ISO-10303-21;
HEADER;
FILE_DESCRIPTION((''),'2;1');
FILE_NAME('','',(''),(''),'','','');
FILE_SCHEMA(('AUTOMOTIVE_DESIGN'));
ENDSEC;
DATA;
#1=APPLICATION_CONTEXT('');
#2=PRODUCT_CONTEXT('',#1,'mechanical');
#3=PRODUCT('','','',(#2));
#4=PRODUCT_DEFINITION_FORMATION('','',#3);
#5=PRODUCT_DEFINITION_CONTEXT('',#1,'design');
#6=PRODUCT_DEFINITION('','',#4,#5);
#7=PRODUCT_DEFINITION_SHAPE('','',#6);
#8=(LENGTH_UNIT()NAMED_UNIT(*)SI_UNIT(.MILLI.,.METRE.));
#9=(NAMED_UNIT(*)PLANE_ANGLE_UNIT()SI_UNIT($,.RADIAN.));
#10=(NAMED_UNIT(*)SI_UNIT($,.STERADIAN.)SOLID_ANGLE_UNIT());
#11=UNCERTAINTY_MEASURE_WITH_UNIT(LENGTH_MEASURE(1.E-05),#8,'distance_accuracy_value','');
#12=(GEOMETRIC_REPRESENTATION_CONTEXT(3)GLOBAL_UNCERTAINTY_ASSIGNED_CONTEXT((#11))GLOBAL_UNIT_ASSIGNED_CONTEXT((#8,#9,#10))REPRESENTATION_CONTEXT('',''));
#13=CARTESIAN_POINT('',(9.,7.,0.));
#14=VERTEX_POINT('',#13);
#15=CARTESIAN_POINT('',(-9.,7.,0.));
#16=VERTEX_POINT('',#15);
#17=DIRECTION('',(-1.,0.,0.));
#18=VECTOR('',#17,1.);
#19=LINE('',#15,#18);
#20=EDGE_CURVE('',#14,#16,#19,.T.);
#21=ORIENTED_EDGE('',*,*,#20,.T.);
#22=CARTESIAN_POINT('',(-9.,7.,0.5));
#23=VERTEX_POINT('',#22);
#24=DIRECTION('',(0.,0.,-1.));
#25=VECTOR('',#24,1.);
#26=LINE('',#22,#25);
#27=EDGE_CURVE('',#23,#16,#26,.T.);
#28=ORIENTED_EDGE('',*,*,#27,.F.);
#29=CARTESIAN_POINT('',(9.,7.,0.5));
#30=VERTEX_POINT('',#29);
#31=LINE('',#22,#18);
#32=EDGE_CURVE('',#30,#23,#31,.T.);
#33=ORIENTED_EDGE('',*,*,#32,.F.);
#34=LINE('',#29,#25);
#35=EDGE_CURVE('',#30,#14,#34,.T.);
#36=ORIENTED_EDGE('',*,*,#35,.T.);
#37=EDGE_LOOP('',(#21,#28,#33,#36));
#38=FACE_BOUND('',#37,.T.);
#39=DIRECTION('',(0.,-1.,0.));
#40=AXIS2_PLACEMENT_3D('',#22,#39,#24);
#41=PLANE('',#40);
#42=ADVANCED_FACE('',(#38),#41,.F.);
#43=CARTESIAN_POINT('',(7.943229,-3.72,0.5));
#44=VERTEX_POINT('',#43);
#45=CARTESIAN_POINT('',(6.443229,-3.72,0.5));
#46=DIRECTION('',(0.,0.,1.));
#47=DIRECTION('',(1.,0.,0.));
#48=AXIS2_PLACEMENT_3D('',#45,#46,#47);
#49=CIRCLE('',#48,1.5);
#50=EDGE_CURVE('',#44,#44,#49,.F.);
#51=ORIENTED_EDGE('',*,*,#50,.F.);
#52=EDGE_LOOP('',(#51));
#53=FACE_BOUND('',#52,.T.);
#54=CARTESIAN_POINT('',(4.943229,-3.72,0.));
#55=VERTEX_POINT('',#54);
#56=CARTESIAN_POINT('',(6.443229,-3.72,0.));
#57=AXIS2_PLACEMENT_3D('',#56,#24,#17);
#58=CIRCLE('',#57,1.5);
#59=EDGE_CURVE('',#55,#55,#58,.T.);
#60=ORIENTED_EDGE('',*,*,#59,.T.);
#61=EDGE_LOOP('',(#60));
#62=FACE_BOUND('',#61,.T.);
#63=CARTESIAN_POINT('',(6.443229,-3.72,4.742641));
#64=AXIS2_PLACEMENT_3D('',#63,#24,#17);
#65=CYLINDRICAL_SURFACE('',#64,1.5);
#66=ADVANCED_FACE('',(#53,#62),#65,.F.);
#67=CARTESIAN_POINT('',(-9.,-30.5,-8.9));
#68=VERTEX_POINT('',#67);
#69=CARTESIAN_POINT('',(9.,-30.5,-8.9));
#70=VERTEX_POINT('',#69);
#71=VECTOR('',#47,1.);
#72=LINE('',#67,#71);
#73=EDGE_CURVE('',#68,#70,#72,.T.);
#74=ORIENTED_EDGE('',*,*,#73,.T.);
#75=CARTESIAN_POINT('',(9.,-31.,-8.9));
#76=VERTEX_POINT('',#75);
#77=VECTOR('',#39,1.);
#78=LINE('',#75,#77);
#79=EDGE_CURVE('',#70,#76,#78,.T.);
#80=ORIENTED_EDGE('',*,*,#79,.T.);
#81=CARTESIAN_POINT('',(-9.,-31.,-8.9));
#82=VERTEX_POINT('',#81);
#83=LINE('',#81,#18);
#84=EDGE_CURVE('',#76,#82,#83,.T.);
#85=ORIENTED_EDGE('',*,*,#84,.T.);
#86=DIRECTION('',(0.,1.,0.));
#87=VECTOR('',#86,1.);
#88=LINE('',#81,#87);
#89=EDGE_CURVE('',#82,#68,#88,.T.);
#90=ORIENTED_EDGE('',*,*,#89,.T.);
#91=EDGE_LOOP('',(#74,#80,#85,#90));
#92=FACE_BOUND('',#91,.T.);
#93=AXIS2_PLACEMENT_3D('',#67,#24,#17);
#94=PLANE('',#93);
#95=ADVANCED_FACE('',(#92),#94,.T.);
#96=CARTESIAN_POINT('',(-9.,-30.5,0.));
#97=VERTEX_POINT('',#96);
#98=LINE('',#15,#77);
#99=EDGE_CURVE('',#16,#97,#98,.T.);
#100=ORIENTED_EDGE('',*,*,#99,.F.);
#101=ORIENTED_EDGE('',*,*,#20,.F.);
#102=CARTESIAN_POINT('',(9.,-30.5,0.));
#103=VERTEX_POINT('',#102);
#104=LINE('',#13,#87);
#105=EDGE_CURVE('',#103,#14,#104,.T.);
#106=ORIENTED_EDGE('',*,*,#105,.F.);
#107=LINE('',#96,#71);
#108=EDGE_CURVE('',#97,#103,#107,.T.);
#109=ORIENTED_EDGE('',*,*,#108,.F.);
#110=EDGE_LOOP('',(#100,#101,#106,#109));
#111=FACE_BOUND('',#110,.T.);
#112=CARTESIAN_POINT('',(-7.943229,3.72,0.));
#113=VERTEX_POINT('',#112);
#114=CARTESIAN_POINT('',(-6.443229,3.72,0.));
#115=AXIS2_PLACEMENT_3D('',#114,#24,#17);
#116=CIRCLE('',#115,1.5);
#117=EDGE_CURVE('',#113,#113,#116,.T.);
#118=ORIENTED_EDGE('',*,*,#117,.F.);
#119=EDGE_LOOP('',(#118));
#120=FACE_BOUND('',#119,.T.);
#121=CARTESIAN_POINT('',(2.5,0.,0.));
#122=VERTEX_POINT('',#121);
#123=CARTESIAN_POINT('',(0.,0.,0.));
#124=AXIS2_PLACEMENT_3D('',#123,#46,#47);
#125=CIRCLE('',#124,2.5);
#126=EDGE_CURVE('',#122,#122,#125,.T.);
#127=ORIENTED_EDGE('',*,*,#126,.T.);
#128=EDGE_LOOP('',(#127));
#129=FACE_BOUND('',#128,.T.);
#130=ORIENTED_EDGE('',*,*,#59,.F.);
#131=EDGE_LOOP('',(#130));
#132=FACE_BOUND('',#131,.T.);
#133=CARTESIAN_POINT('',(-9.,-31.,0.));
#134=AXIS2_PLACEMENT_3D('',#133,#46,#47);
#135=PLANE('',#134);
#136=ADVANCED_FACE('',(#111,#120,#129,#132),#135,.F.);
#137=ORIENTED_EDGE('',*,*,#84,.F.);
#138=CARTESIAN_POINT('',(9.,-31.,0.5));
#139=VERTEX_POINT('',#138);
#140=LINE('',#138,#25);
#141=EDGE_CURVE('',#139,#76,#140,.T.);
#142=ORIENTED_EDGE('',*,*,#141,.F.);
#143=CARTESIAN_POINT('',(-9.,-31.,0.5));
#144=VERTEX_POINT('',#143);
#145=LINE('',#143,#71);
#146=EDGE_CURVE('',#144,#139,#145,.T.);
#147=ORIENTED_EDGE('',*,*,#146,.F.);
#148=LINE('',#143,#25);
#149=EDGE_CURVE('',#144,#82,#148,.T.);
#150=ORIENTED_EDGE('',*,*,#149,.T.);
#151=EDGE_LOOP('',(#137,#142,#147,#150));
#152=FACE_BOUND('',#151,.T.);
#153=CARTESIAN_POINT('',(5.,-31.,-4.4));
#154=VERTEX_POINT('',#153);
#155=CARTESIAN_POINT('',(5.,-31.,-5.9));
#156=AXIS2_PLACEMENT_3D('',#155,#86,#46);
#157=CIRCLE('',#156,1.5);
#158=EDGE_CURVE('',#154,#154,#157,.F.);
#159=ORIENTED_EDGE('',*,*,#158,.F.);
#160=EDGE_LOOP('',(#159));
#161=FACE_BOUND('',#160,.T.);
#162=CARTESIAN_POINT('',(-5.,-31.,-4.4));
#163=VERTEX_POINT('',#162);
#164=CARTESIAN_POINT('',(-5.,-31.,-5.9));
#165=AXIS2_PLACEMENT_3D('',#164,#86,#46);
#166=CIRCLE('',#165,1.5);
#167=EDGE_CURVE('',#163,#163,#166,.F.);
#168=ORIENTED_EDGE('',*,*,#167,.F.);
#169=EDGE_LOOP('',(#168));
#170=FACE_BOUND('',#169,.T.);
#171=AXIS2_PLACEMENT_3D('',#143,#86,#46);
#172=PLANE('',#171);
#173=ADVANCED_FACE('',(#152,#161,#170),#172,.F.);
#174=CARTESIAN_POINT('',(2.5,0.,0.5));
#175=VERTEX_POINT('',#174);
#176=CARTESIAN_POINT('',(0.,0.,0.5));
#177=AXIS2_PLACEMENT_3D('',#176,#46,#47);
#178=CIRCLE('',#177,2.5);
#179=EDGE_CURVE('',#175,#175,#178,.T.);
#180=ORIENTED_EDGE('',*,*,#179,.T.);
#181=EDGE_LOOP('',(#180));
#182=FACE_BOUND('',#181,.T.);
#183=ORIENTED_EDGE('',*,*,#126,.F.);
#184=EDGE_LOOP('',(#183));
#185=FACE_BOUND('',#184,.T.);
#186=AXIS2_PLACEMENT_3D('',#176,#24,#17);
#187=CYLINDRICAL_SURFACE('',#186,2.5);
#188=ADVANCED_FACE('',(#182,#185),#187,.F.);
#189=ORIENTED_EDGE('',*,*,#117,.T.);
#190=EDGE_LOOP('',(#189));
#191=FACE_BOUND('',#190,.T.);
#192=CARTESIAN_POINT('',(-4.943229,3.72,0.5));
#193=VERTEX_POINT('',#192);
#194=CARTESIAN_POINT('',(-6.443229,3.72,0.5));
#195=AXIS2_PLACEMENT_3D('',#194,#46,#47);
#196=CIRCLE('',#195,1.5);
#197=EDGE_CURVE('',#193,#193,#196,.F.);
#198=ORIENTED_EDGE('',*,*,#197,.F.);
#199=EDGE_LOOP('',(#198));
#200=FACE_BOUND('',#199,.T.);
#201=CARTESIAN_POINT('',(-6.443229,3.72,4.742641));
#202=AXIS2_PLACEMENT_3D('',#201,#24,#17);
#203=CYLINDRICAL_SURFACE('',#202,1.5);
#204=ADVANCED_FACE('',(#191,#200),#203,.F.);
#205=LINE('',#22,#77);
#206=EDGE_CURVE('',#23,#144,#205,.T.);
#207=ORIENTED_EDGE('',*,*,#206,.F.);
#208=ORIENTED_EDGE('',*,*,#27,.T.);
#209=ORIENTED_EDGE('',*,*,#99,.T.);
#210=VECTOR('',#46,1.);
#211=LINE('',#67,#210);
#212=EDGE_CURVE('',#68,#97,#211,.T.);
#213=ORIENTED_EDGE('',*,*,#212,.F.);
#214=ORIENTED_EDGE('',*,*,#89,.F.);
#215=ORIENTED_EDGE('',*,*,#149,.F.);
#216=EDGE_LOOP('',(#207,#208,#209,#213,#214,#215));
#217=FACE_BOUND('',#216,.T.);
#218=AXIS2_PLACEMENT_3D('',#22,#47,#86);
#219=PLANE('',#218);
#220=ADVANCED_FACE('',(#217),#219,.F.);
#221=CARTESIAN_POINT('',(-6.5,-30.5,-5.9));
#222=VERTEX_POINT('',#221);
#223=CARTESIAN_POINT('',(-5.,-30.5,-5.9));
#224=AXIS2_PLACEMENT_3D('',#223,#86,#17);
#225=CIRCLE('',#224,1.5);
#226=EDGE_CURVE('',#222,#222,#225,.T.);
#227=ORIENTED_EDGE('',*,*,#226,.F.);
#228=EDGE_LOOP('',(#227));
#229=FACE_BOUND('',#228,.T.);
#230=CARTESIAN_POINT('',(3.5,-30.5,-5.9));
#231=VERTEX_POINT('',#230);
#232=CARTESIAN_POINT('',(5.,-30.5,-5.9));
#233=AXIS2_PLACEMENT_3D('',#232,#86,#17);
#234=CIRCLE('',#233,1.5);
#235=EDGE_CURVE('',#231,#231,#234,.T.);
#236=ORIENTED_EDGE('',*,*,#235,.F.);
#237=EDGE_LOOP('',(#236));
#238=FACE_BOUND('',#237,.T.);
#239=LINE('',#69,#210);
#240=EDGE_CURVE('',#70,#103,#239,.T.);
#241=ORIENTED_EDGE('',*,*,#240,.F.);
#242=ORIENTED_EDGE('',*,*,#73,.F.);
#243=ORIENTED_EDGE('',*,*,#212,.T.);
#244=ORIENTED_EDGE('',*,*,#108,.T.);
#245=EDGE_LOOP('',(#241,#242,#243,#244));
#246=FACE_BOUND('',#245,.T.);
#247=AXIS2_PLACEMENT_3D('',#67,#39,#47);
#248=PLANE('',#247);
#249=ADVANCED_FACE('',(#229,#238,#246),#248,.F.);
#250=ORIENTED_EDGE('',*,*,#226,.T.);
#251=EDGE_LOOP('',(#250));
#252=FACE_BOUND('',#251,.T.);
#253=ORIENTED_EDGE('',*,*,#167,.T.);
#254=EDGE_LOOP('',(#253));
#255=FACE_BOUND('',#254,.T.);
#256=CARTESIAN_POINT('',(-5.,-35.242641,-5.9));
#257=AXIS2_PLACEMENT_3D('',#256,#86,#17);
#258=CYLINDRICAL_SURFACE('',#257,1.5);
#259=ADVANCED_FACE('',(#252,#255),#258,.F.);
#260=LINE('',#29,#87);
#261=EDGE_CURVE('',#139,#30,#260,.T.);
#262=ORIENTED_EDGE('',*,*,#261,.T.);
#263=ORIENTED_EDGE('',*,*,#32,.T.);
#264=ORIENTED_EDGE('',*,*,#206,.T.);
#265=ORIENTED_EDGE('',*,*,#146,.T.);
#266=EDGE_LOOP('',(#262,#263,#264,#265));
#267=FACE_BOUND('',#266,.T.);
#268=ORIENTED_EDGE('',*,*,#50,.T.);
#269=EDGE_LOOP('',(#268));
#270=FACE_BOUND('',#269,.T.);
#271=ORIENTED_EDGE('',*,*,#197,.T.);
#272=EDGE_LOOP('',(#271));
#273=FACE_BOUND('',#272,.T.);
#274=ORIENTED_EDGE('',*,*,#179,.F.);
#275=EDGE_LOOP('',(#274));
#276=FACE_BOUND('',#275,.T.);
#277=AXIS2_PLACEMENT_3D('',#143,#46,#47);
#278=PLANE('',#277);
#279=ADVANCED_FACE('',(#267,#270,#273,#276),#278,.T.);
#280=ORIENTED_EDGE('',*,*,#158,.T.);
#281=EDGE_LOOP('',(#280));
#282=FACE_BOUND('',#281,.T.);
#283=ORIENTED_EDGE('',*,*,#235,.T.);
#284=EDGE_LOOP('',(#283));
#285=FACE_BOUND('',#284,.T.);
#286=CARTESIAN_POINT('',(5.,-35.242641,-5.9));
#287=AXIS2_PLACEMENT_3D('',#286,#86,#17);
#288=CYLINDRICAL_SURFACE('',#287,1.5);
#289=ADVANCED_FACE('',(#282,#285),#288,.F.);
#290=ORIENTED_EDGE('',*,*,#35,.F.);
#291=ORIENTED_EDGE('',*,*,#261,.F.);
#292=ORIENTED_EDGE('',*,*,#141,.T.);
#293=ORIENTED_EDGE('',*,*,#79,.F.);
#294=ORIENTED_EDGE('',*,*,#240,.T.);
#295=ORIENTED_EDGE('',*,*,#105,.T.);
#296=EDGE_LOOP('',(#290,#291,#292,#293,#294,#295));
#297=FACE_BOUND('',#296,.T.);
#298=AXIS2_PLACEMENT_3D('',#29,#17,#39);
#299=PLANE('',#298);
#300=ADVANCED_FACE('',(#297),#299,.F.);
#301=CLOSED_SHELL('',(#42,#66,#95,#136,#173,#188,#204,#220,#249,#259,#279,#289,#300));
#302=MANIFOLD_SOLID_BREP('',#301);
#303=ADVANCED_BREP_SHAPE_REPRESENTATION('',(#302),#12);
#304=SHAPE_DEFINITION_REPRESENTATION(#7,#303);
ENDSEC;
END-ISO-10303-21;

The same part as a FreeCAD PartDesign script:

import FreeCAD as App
import Part
import Sketcher

V = App.Vector

doc = App.newDocument("Part")
params = doc.addObject("Spreadsheet::Sheet", "Params")
for row, (alias, value) in enumerate([
    ("sketch1_diameter", "5 mm"),
    ("sketch1_width", "18 mm"),
    ("sketch1_height", "38 mm"),
    ("pad1_length", "0.5 mm"),
    ("sketch2_width", "18 mm"),
    ("sketch2_height", "0.5 mm"),
    ("pad2_length", "8.9 mm"),
    ("sketch3_diameter", "3 mm"),
    ("pocket1_length", "0.5 mm"),
    ("sketch4_diameter", "3 mm"),
    ("pocket2_length", "0.5 mm"),
], start=1):
    params.set(f"A{row}", alias)
    params.set(f"B{row}", "=" + value)
    params.setAlias(f"B{row}", alias)

body = doc.addObject("PartDesign::Body", "Body")

# Sketch on XY plane
sketch1 = doc.addObject("Sketcher::SketchObject", "Sketch")
body.addObject(sketch1)
sketch1.AttachmentSupport = (doc.XY_Plane, [""])
sketch1.MapMode = "FlatFace"
sketch1.addGeometry(Part.LineSegment(V(-9, 7, 0), V(-9, -31, 0)), False)
sketch1.addGeometry(Part.LineSegment(V(-9, -31, 0), V(9, -31, 0)), False)
sketch1.addGeometry(Part.LineSegment(V(9, -31, 0), V(9, 7, 0)), False)
sketch1.addGeometry(Part.LineSegment(V(9, 7, 0), V(-9, 7, 0)), False)
sketch1.addGeometry(Part.Circle(V(0, 0, 0), V(0, 0, 1), 2.5), False)
sketch1.addConstraint(Sketcher.Constraint("Coincident", 0, 2, 1, 1))
sketch1.addConstraint(Sketcher.Constraint("Coincident", 1, 2, 2, 1))
sketch1.addConstraint(Sketcher.Constraint("Coincident", 2, 2, 3, 1))
sketch1.addConstraint(Sketcher.Constraint("Coincident", 3, 2, 0, 1))
sketch1.addConstraint(Sketcher.Constraint("Vertical", 0))
sketch1.addConstraint(Sketcher.Constraint("Horizontal", 1))
sketch1.addConstraint(Sketcher.Constraint("Vertical", 2))
sketch1.addConstraint(Sketcher.Constraint("Horizontal", 3))
sketch1.addConstraint(Sketcher.Constraint("Coincident", 4, 3, -1, 1))
sketch1.addConstraint(Sketcher.Constraint("Diameter", 4, 5.0))
sketch1.addConstraint(Sketcher.Constraint("DistanceX", 1, 1, 1, 2, 18.0))
sketch1.addConstraint(Sketcher.Constraint("DistanceY", 0, 2, 0, 1, 38.0))
sketch1.addConstraint(Sketcher.Constraint("DistanceX", 0, 2, -1, 1, 9.0))
sketch1.addConstraint(Sketcher.Constraint("DistanceY", 0, 2, -1, 1, 31.0))
sketch1.setExpression("Constraints[9]", "Params.sketch1_diameter")
sketch1.setExpression("Constraints[10]", "Params.sketch1_width")
sketch1.setExpression("Constraints[11]", "Params.sketch1_height")
pad1 = doc.addObject("PartDesign::Pad", "Pad")
body.addObject(pad1)
pad1.Profile = sketch1
pad1.setExpression("Length", "Params.pad1_length")

# Sketch on XY plane
sketch2 = doc.addObject("Sketcher::SketchObject", "Sketch001")
body.addObject(sketch2)
sketch2.AttachmentSupport = (doc.XY_Plane, [""])
sketch2.MapMode = "FlatFace"
sketch2.addGeometry(Part.LineSegment(V(9, -30.5, 0), V(9, -31, 0)), False)
sketch2.addGeometry(Part.LineSegment(V(9, -31, 0), V(-9, -31, 0)), False)
sketch2.addGeometry(Part.LineSegment(V(-9, -31, 0), V(-9, -30.5, 0)), False)
sketch2.addGeometry(Part.LineSegment(V(-9, -30.5, 0), V(9, -30.5, 0)), False)
sketch2.addConstraint(Sketcher.Constraint("Coincident", 0, 2, 1, 1))
sketch2.addConstraint(Sketcher.Constraint("Coincident", 1, 2, 2, 1))
sketch2.addConstraint(Sketcher.Constraint("Coincident", 2, 2, 3, 1))
sketch2.addConstraint(Sketcher.Constraint("Coincident", 3, 2, 0, 1))
sketch2.addConstraint(Sketcher.Constraint("Vertical", 0))
sketch2.addConstraint(Sketcher.Constraint("Horizontal", 1))
sketch2.addConstraint(Sketcher.Constraint("Vertical", 2))
sketch2.addConstraint(Sketcher.Constraint("Horizontal", 3))
sketch2.addConstraint(Sketcher.Constraint("DistanceX", 1, 2, 1, 1, 18.0))
sketch2.addConstraint(Sketcher.Constraint("DistanceY", 0, 2, 0, 1, 0.5))
sketch2.addConstraint(Sketcher.Constraint("DistanceX", -1, 1, 0, 2, 9.0))
sketch2.addConstraint(Sketcher.Constraint("DistanceY", 0, 2, -1, 1, 31.0))
sketch2.setExpression("Constraints[8]", "Params.sketch2_width")
sketch2.setExpression("Constraints[9]", "Params.sketch2_height")
pad2 = doc.addObject("PartDesign::Pad", "Pad001")
body.addObject(pad2)
pad2.Profile = sketch2
pad2.setExpression("Length", "Params.pad2_length")
pad2.Reversed = True

# Sketch on XZ plane
sketch3 = doc.addObject("Sketcher::SketchObject", "Sketch002")
body.addObject(sketch3)
sketch3.AttachmentSupport = (doc.XZ_Plane, [""])
sketch3.MapMode = "FlatFace"
sketch3.AttachmentOffset = App.Placement(V(0, 0, 30.5), App.Rotation())
sketch3.addGeometry(Part.Circle(V(-5, -5.9, 0), V(0, 0, 1), 1.5), False)
sketch3.addGeometry(Part.Circle(V(5, -5.9, 0), V(0, 0, 1), 1.5), False)
sketch3.addConstraint(Sketcher.Constraint("Equal", 0, 1))
sketch3.addConstraint(Sketcher.Constraint("Symmetric", 0, 3, 1, 3, -2))
sketch3.addConstraint(Sketcher.Constraint("Diameter", 0, 3.0))
sketch3.addConstraint(Sketcher.Constraint("DistanceX", 0, 3, -1, 1, 5.0))
sketch3.addConstraint(Sketcher.Constraint("DistanceY", 0, 3, -1, 1, 5.9))
sketch3.setExpression("Constraints[2]", "Params.sketch3_diameter")
pocket1 = doc.addObject("PartDesign::Pocket", "Pocket")
body.addObject(pocket1)
pocket1.Profile = sketch3
pocket1.setExpression("Length", "Params.pocket1_length")
pocket1.Reversed = True

# Sketch on XY plane
sketch4 = doc.addObject("Sketcher::SketchObject", "Sketch003")
body.addObject(sketch4)
sketch4.AttachmentSupport = (doc.XY_Plane, [""])
sketch4.MapMode = "FlatFace"
sketch4.addGeometry(Part.Circle(V(6.443229, -3.72, 0), V(0, 0, 1), 1.5), False)
sketch4.addGeometry(Part.Circle(V(-6.443229, 3.72, 0), V(0, 0, 1), 1.5), False)
sketch4.addConstraint(Sketcher.Constraint("Equal", 0, 1))
sketch4.addConstraint(Sketcher.Constraint("Symmetric", 0, 3, 1, 3, -1, 1))
sketch4.addConstraint(Sketcher.Constraint("Diameter", 0, 3.0))
sketch4.addConstraint(Sketcher.Constraint("DistanceY", 0, 3, -1, 1, 3.72))
sketch4.addConstraint(Sketcher.Constraint("DistanceX", -1, 1, 0, 3, 6.443229))
sketch4.setExpression("Constraints[2]", "Params.sketch4_diameter")
pocket2 = doc.addObject("PartDesign::Pocket", "Pocket001")
body.addObject(pocket2)
pocket2.Profile = sketch4
pocket2.setExpression("Length", "Params.pocket2_length")
pocket2.Reversed = True

doc.recompute()
